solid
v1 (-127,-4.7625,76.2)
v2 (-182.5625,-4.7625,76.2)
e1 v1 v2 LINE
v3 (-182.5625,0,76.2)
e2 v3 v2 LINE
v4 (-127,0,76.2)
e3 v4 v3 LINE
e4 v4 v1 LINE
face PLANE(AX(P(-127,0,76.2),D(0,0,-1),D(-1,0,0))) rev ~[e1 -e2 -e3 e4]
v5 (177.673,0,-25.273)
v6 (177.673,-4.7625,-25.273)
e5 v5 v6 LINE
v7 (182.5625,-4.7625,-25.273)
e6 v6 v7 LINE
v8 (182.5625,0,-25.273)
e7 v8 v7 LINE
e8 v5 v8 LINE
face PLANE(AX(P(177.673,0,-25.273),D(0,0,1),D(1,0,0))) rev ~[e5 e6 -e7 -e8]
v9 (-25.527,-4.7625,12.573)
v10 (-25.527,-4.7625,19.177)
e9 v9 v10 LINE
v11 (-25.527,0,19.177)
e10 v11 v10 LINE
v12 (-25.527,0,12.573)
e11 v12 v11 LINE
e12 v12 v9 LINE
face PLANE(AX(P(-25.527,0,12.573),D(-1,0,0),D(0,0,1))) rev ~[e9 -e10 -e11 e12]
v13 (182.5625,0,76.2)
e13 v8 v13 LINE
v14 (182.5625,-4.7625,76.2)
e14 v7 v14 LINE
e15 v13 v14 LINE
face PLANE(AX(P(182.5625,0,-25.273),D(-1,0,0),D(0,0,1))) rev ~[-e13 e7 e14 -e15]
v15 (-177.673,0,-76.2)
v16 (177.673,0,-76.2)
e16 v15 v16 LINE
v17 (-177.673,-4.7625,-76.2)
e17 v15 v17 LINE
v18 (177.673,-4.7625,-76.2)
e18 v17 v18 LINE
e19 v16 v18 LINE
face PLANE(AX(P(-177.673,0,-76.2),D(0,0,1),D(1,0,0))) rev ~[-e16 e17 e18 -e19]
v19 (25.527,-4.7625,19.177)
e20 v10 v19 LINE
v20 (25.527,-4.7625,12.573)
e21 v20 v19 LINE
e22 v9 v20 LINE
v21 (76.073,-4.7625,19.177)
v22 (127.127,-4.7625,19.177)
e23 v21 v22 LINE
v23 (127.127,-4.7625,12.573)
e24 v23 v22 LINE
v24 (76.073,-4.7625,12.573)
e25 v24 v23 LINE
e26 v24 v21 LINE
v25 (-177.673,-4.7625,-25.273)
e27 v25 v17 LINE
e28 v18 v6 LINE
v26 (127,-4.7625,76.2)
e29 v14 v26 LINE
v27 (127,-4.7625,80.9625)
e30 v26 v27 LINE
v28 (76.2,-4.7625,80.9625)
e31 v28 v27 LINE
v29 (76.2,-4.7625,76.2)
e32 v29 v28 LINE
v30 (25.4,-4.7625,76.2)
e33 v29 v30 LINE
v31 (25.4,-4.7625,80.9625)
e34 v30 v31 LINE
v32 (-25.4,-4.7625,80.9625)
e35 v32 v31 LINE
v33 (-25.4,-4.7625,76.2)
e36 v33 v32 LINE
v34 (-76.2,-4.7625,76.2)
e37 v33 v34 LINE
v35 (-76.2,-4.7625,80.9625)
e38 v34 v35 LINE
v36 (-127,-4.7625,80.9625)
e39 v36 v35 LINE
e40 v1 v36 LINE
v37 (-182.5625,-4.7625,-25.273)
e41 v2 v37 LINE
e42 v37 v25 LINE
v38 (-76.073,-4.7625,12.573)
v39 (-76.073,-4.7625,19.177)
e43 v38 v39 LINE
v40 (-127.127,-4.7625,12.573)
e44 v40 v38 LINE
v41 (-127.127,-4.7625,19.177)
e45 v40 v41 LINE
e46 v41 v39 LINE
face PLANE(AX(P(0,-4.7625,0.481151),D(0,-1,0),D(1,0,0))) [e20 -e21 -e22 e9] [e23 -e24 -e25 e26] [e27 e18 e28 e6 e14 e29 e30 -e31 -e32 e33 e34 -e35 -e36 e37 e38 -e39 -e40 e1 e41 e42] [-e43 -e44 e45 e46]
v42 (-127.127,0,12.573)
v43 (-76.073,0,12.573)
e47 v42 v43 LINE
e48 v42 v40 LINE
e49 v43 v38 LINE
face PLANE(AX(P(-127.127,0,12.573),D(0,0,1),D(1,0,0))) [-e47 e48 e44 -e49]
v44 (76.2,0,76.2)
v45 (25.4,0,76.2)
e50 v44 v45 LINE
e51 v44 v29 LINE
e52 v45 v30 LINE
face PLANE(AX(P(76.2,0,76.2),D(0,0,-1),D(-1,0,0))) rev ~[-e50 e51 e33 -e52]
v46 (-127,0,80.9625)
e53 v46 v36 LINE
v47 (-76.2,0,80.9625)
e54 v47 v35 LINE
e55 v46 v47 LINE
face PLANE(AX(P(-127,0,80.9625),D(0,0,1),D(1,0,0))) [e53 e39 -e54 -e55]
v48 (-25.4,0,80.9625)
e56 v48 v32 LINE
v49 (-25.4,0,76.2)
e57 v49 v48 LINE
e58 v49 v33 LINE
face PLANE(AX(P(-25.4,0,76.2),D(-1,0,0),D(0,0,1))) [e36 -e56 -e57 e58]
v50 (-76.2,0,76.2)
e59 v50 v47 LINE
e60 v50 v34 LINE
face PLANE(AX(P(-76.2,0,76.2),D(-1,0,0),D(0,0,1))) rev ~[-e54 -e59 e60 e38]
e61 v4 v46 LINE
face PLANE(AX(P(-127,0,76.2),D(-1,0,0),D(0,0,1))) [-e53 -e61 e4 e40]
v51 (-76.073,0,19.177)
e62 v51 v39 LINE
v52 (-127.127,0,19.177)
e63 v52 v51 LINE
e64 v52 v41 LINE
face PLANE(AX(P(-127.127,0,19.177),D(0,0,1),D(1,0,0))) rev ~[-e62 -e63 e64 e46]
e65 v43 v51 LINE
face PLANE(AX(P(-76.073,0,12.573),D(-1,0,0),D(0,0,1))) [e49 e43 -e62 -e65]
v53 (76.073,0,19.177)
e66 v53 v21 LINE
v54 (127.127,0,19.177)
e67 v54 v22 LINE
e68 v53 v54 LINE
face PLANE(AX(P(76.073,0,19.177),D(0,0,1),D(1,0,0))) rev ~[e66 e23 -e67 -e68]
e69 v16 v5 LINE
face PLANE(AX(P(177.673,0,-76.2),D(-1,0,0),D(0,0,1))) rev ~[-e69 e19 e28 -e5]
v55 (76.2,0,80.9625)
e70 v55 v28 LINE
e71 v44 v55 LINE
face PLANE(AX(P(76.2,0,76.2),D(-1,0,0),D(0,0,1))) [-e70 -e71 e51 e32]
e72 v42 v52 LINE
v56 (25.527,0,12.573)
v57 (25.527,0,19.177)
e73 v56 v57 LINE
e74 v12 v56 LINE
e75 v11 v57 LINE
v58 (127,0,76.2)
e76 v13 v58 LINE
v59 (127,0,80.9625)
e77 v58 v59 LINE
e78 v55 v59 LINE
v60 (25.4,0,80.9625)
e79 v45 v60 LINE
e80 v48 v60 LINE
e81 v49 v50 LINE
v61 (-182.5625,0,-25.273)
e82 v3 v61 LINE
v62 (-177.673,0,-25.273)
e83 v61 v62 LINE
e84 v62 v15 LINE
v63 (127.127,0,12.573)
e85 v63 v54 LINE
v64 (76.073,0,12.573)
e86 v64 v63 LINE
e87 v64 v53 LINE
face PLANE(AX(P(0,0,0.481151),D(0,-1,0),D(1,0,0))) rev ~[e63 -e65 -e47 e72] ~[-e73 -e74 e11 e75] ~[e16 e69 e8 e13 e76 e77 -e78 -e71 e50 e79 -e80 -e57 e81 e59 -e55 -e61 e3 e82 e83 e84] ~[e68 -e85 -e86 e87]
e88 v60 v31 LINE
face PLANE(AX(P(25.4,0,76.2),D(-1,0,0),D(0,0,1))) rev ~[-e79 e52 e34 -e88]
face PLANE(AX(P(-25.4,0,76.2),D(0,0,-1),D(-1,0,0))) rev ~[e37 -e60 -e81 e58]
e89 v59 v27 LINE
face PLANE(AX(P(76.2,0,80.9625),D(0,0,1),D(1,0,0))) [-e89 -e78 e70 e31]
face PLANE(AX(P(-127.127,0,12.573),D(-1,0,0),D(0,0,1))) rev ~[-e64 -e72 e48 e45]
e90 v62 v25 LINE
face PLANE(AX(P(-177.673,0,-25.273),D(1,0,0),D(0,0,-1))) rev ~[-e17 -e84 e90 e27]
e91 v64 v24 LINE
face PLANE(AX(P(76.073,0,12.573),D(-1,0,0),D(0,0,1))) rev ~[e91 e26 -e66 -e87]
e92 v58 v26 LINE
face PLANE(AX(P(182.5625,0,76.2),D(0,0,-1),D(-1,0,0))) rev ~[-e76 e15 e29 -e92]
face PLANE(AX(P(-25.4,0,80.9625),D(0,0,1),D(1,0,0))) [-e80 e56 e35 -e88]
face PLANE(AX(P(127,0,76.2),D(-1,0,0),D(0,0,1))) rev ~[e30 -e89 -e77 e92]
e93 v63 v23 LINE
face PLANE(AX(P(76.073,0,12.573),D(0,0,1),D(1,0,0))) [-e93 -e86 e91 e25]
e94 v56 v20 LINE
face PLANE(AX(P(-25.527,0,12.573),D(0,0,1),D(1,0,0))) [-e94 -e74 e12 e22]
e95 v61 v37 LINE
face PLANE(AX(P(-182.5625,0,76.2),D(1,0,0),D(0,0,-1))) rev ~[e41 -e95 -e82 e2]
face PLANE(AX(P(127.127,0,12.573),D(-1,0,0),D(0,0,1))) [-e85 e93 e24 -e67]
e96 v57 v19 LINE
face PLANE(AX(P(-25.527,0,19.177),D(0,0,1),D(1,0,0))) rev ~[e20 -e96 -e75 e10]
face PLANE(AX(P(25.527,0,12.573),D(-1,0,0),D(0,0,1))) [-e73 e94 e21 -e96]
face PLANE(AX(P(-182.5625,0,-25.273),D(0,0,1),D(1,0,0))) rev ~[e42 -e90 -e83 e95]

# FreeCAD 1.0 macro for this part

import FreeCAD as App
import Part
import Sketcher
Q = App.Units.Quantity


def add_polygon(sketch, points):
    """Adds a closed chain of lines whose ends are joined by coincident constraints."""
    first, n = sketch.GeometryCount, len(points)
    for a, b in zip(points, points[1:] + points[:1]):
        sketch.addGeometry(Part.LineSegment(App.Vector(*a, 0), App.Vector(*b, 0)), False)
    for i in range(n):
        sketch.addConstraint(Sketcher.Constraint("Coincident", first + i, 2, first + (i + 1) % n, 1))

doc = App.newDocument("Part")
body = doc.addObject("PartDesign::Body", "Body")

# Sketch on XZ plane
sketch1 = body.newObject("Sketcher::SketchObject", "Sketch")
sketch1.AttachmentSupport = (doc.getObject("XZ_Plane"), [""])
sketch1.MapMode = "FlatFace"
add_polygon(sketch1, [(-182.6, 76.2), (-182.6, -25.3), (-177.7, -25.3), (-177.7, -76.2), (177.7, -76.2), (177.7, -25.3), (182.6, -25.3), (182.6, 76.2), (127, 76.2), (127, 81), (76.2, 81), (76.2, 76.2), (25.4, 76.2), (25.4, 81), (-25.4, 81), (-25.4, 76.2), (-76.2, 76.2), (-76.2, 81), (-127, 81), (-127, 76.2)])  # lines 0-19
add_polygon(sketch1, [(-76.1, 12.6), (-127.1, 12.6), (-127.1, 19.2), (-76.1, 19.2)])  # lines 20-23
add_polygon(sketch1, [(25.5, 12.6), (-25.5, 12.6), (-25.5, 19.2), (25.5, 19.2)])  # lines 24-27
add_polygon(sketch1, [(127.1, 12.6), (76.1, 12.6), (76.1, 19.2), (127.1, 19.2)])  # lines 28-31
sketch1.addConstraint(Sketcher.Constraint("Vertical", 0))
sketch1.addConstraint(Sketcher.Constraint("Horizontal", 1))
sketch1.addConstraint(Sketcher.Constraint("Vertical", 2))
sketch1.addConstraint(Sketcher.Constraint("Horizontal", 3))
sketch1.addConstraint(Sketcher.Constraint("Vertical", 4))
sketch1.addConstraint(Sketcher.Constraint("Horizontal", 5))
sketch1.addConstraint(Sketcher.Constraint("Vertical", 6))
sketch1.addConstraint(Sketcher.Constraint("Horizontal", 7))
sketch1.addConstraint(Sketcher.Constraint("Vertical", 8))
sketch1.addConstraint(Sketcher.Constraint("Horizontal", 9))
sketch1.addConstraint(Sketcher.Constraint("Vertical", 10))
sketch1.addConstraint(Sketcher.Constraint("Horizontal", 11))
sketch1.addConstraint(Sketcher.Constraint("Vertical", 12))
sketch1.addConstraint(Sketcher.Constraint("Horizontal", 13))
sketch1.addConstraint(Sketcher.Constraint("Vertical", 14))
sketch1.addConstraint(Sketcher.Constraint("Horizontal", 15))
sketch1.addConstraint(Sketcher.Constraint("Vertical", 16))
sketch1.addConstraint(Sketcher.Constraint("Horizontal", 17))
sketch1.addConstraint(Sketcher.Constraint("Vertical", 18))
sketch1.addConstraint(Sketcher.Constraint("Horizontal", 19))
sketch1.addConstraint(Sketcher.Constraint("Horizontal", 20))
sketch1.addConstraint(Sketcher.Constraint("Vertical", 21))
sketch1.addConstraint(Sketcher.Constraint("Horizontal", 22))
sketch1.addConstraint(Sketcher.Constraint("Vertical", 23))
sketch1.addConstraint(Sketcher.Constraint("Horizontal", 24))
sketch1.addConstraint(Sketcher.Constraint("Vertical", 25))
sketch1.addConstraint(Sketcher.Constraint("Horizontal", 26))
sketch1.addConstraint(Sketcher.Constraint("Vertical", 27))
sketch1.addConstraint(Sketcher.Constraint("Horizontal", 28))
sketch1.addConstraint(Sketcher.Constraint("Vertical", 29))
sketch1.addConstraint(Sketcher.Constraint("Horizontal", 30))
sketch1.addConstraint(Sketcher.Constraint("Vertical", 31))
sketch1.addConstraint(Sketcher.Constraint("Symmetric", 1, 2, 4, 2, -2))
sketch1.addConstraint(Sketcher.Constraint("Symmetric", 11, 2, 14, 2, -2))
sketch1.addConstraint(Sketcher.Constraint("Symmetric", 9, 2, 16, 2, -2))
sketch1.addConstraint(Sketcher.Constraint("Symmetric", 7, 2, 18, 2, -2))
sketch1.addConstraint(Sketcher.Constraint("Symmetric", 23, 2, 28, 2, -2))
sketch1.addConstraint(Sketcher.Constraint("Symmetric", 21, 2, 30, 2, -2))
sketch1.addConstraint(Sketcher.Constraint("Horizontal", 7, 2, 10, 2))
sketch1.addConstraint(Sketcher.Constraint("Horizontal", 9, 2, 12, 2))
sketch1.addConstraint(Sketcher.Constraint("Horizontal", 23, 2, 24, 2))
sketch1.addConstraint(Sketcher.Constraint("Horizontal", 22, 2, 25, 2))
sketch1.addConstraint(Sketcher.Constraint("Equal", 1, 5))
sketch1.addConstraint(Sketcher.Constraint("Equal", 9, 11))
sketch1.addConstraint(Sketcher.Constraint("Equal", 11, 13))
sketch1.addConstraint(Sketcher.Constraint("Equal", 22, 24))
sketch1.addConstraint(Sketcher.Constraint("DistanceX", 9, 2, 9, 1, Q("2 in")))
sketch1.addConstraint(Sketcher.Constraint("DistanceY", 2, 2, -1, 1, Q("3 in")))
sketch1.addConstraint(Sketcher.Constraint("DistanceY", -1, 1, 6, 2, Q("3 in")))
sketch1.addConstraint(Sketcher.Constraint("DistanceX", 3, 1, 3, 2, Q("13.99 in")))
sketch1.addConstraint(Sketcher.Constraint("DistanceX", 20, 2, 20, 1, Q("2.01 in")))
sketch1.addConstraint(Sketcher.Constraint("DistanceY", 21, 1, 21, 2, Q("0.26 in")))
sketch1.addConstraint(Sketcher.Constraint("DistanceX", 7, 2, 7, 1, Q("2.1875 in")))
sketch1.addConstraint(Sketcher.Constraint("DistanceY", 0, 2, 0, 1, Q("3.995 in")))
sketch1.addConstraint(Sketcher.Constraint("DistanceY", 8, 1, 8, 2, Q("0.1875 in")))
sketch1.addConstraint(Sketcher.Constraint("DistanceX", 1, 2, 20, 2, Q("1.99 in")))
sketch1.addConstraint(Sketcher.Constraint("DistanceY", 1, 2, 20, 2, Q("1.49 in")))
sketch1.addConstraint(Sketcher.Constraint("DistanceX", 23, 2, 24, 2, Q("1.99 in")))
pad1 = body.newObject("PartDesign::Pad", "Pad")
pad1.Profile = sketch1
pad1.Length = Q("0.1875 in")

doc.recompute()
